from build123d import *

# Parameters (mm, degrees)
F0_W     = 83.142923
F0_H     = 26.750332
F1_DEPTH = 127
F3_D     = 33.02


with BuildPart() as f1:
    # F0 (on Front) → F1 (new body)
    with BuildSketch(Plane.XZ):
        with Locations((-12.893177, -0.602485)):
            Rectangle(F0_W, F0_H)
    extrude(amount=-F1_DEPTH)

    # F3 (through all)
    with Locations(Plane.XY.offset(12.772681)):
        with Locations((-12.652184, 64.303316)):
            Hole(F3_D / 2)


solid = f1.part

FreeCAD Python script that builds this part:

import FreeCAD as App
import Part
import Sketcher

V = App.Vector
Q = App.Units.Quantity


def add_polygon(sketch, points):
    """Adds a closed chain of lines whose ends are joined by coincident constraints."""
    first, n = sketch.GeometryCount, len(points)
    for a, b in zip(points, points[1:] + points[:1]):
        sketch.addGeometry(Part.LineSegment(App.Vector(*a, 0), App.Vector(*b, 0)), False)
    for i in range(n):
        sketch.addConstraint(Sketcher.Constraint("Coincident", first + i, 2, first + (i + 1) % n, 1))

doc = App.newDocument("Part")
params = doc.addObject("Spreadsheet::Sheet", "Params")
for row, (alias, value) in enumerate([
    ("pad1_length", "5 in"),
    ("sketch2_diameter", "1.3 in"),
    ("hole_diameter", "1.3 in"),
], start=1):
    params.set(f"A{row}", alias)
    params.set(f"B{row}", "=" + value)
    params.setAlias(f"B{row}", alias)

body = doc.addObject("PartDesign::Body", "Body")

sketch1 = doc.addObject("Sketcher::SketchObject", "Sketch")
body.addObject(sketch1)
sketch1.AttachmentSupport = (doc.XZ_Plane, [""])
sketch1.MapMode = "FlatFace"
add_polygon(sketch1, [(-54, 13), (-54, -14), (29, -14), (29, 13)])
sketch1.addConstraint(Sketcher.Constraint("Vertical", 0))
sketch1.addConstraint(Sketcher.Constraint("Horizontal", 1))
sketch1.addConstraint(Sketcher.Constraint("Vertical", 2))
sketch1.addConstraint(Sketcher.Constraint("Horizontal", 3))
sketch1.addConstraint(Sketcher.Constraint("DistanceY", 0, 2, 0, 1, 26.750332))
sketch1.addConstraint(Sketcher.Constraint("DistanceX", 1, 1, 1, 2, 83.142923))
sketch1.addConstraint(Sketcher.Constraint("DistanceX", 0, 2, -1, 1, 54.464638))
sketch1.addConstraint(Sketcher.Constraint("DistanceY", 0, 2, -1, 1, 13.977651))
pad1 = doc.addObject("PartDesign::Pad", "Pad")
body.addObject(pad1)
pad1.Profile = sketch1
pad1.setExpression("Length", "Params.pad1_length")
pad1.Reversed = True

sketch2 = doc.addObject("Sketcher::SketchObject", "Sketch001")
body.addObject(sketch2)
sketch2.AttachmentSupport = (doc.XY_Plane, [""])
sketch2.MapMode = "FlatFace"
sketch2.AttachmentOffset = App.Placement(V(0, 0, 12.772681), App.Rotation())
sketch2.addGeometry(Part.Circle(V(-13, 64, 0), V(0, 0, 1), 17), False)
sketch2.addConstraint(Sketcher.Constraint("Diameter", 0, Q("1.3 in")))
sketch2.addConstraint(Sketcher.Constraint("DistanceX", 0, 3, -1, 1, 12.652184))
sketch2.addConstraint(Sketcher.Constraint("DistanceY", -1, 1, 0, 3, 64.303316))
sketch2.setExpression("Constraints[0]", "Params.sketch2_diameter")
doc.recompute()
hole = doc.addObject("PartDesign::Hole", "Hole")
body.addObject(hole)
hole.Profile = sketch2
hole.ThreadType = "None"
hole.setExpression("Diameter", "Params.hole_diameter")
hole.DepthType = "ThroughAll"

doc.recompute()
